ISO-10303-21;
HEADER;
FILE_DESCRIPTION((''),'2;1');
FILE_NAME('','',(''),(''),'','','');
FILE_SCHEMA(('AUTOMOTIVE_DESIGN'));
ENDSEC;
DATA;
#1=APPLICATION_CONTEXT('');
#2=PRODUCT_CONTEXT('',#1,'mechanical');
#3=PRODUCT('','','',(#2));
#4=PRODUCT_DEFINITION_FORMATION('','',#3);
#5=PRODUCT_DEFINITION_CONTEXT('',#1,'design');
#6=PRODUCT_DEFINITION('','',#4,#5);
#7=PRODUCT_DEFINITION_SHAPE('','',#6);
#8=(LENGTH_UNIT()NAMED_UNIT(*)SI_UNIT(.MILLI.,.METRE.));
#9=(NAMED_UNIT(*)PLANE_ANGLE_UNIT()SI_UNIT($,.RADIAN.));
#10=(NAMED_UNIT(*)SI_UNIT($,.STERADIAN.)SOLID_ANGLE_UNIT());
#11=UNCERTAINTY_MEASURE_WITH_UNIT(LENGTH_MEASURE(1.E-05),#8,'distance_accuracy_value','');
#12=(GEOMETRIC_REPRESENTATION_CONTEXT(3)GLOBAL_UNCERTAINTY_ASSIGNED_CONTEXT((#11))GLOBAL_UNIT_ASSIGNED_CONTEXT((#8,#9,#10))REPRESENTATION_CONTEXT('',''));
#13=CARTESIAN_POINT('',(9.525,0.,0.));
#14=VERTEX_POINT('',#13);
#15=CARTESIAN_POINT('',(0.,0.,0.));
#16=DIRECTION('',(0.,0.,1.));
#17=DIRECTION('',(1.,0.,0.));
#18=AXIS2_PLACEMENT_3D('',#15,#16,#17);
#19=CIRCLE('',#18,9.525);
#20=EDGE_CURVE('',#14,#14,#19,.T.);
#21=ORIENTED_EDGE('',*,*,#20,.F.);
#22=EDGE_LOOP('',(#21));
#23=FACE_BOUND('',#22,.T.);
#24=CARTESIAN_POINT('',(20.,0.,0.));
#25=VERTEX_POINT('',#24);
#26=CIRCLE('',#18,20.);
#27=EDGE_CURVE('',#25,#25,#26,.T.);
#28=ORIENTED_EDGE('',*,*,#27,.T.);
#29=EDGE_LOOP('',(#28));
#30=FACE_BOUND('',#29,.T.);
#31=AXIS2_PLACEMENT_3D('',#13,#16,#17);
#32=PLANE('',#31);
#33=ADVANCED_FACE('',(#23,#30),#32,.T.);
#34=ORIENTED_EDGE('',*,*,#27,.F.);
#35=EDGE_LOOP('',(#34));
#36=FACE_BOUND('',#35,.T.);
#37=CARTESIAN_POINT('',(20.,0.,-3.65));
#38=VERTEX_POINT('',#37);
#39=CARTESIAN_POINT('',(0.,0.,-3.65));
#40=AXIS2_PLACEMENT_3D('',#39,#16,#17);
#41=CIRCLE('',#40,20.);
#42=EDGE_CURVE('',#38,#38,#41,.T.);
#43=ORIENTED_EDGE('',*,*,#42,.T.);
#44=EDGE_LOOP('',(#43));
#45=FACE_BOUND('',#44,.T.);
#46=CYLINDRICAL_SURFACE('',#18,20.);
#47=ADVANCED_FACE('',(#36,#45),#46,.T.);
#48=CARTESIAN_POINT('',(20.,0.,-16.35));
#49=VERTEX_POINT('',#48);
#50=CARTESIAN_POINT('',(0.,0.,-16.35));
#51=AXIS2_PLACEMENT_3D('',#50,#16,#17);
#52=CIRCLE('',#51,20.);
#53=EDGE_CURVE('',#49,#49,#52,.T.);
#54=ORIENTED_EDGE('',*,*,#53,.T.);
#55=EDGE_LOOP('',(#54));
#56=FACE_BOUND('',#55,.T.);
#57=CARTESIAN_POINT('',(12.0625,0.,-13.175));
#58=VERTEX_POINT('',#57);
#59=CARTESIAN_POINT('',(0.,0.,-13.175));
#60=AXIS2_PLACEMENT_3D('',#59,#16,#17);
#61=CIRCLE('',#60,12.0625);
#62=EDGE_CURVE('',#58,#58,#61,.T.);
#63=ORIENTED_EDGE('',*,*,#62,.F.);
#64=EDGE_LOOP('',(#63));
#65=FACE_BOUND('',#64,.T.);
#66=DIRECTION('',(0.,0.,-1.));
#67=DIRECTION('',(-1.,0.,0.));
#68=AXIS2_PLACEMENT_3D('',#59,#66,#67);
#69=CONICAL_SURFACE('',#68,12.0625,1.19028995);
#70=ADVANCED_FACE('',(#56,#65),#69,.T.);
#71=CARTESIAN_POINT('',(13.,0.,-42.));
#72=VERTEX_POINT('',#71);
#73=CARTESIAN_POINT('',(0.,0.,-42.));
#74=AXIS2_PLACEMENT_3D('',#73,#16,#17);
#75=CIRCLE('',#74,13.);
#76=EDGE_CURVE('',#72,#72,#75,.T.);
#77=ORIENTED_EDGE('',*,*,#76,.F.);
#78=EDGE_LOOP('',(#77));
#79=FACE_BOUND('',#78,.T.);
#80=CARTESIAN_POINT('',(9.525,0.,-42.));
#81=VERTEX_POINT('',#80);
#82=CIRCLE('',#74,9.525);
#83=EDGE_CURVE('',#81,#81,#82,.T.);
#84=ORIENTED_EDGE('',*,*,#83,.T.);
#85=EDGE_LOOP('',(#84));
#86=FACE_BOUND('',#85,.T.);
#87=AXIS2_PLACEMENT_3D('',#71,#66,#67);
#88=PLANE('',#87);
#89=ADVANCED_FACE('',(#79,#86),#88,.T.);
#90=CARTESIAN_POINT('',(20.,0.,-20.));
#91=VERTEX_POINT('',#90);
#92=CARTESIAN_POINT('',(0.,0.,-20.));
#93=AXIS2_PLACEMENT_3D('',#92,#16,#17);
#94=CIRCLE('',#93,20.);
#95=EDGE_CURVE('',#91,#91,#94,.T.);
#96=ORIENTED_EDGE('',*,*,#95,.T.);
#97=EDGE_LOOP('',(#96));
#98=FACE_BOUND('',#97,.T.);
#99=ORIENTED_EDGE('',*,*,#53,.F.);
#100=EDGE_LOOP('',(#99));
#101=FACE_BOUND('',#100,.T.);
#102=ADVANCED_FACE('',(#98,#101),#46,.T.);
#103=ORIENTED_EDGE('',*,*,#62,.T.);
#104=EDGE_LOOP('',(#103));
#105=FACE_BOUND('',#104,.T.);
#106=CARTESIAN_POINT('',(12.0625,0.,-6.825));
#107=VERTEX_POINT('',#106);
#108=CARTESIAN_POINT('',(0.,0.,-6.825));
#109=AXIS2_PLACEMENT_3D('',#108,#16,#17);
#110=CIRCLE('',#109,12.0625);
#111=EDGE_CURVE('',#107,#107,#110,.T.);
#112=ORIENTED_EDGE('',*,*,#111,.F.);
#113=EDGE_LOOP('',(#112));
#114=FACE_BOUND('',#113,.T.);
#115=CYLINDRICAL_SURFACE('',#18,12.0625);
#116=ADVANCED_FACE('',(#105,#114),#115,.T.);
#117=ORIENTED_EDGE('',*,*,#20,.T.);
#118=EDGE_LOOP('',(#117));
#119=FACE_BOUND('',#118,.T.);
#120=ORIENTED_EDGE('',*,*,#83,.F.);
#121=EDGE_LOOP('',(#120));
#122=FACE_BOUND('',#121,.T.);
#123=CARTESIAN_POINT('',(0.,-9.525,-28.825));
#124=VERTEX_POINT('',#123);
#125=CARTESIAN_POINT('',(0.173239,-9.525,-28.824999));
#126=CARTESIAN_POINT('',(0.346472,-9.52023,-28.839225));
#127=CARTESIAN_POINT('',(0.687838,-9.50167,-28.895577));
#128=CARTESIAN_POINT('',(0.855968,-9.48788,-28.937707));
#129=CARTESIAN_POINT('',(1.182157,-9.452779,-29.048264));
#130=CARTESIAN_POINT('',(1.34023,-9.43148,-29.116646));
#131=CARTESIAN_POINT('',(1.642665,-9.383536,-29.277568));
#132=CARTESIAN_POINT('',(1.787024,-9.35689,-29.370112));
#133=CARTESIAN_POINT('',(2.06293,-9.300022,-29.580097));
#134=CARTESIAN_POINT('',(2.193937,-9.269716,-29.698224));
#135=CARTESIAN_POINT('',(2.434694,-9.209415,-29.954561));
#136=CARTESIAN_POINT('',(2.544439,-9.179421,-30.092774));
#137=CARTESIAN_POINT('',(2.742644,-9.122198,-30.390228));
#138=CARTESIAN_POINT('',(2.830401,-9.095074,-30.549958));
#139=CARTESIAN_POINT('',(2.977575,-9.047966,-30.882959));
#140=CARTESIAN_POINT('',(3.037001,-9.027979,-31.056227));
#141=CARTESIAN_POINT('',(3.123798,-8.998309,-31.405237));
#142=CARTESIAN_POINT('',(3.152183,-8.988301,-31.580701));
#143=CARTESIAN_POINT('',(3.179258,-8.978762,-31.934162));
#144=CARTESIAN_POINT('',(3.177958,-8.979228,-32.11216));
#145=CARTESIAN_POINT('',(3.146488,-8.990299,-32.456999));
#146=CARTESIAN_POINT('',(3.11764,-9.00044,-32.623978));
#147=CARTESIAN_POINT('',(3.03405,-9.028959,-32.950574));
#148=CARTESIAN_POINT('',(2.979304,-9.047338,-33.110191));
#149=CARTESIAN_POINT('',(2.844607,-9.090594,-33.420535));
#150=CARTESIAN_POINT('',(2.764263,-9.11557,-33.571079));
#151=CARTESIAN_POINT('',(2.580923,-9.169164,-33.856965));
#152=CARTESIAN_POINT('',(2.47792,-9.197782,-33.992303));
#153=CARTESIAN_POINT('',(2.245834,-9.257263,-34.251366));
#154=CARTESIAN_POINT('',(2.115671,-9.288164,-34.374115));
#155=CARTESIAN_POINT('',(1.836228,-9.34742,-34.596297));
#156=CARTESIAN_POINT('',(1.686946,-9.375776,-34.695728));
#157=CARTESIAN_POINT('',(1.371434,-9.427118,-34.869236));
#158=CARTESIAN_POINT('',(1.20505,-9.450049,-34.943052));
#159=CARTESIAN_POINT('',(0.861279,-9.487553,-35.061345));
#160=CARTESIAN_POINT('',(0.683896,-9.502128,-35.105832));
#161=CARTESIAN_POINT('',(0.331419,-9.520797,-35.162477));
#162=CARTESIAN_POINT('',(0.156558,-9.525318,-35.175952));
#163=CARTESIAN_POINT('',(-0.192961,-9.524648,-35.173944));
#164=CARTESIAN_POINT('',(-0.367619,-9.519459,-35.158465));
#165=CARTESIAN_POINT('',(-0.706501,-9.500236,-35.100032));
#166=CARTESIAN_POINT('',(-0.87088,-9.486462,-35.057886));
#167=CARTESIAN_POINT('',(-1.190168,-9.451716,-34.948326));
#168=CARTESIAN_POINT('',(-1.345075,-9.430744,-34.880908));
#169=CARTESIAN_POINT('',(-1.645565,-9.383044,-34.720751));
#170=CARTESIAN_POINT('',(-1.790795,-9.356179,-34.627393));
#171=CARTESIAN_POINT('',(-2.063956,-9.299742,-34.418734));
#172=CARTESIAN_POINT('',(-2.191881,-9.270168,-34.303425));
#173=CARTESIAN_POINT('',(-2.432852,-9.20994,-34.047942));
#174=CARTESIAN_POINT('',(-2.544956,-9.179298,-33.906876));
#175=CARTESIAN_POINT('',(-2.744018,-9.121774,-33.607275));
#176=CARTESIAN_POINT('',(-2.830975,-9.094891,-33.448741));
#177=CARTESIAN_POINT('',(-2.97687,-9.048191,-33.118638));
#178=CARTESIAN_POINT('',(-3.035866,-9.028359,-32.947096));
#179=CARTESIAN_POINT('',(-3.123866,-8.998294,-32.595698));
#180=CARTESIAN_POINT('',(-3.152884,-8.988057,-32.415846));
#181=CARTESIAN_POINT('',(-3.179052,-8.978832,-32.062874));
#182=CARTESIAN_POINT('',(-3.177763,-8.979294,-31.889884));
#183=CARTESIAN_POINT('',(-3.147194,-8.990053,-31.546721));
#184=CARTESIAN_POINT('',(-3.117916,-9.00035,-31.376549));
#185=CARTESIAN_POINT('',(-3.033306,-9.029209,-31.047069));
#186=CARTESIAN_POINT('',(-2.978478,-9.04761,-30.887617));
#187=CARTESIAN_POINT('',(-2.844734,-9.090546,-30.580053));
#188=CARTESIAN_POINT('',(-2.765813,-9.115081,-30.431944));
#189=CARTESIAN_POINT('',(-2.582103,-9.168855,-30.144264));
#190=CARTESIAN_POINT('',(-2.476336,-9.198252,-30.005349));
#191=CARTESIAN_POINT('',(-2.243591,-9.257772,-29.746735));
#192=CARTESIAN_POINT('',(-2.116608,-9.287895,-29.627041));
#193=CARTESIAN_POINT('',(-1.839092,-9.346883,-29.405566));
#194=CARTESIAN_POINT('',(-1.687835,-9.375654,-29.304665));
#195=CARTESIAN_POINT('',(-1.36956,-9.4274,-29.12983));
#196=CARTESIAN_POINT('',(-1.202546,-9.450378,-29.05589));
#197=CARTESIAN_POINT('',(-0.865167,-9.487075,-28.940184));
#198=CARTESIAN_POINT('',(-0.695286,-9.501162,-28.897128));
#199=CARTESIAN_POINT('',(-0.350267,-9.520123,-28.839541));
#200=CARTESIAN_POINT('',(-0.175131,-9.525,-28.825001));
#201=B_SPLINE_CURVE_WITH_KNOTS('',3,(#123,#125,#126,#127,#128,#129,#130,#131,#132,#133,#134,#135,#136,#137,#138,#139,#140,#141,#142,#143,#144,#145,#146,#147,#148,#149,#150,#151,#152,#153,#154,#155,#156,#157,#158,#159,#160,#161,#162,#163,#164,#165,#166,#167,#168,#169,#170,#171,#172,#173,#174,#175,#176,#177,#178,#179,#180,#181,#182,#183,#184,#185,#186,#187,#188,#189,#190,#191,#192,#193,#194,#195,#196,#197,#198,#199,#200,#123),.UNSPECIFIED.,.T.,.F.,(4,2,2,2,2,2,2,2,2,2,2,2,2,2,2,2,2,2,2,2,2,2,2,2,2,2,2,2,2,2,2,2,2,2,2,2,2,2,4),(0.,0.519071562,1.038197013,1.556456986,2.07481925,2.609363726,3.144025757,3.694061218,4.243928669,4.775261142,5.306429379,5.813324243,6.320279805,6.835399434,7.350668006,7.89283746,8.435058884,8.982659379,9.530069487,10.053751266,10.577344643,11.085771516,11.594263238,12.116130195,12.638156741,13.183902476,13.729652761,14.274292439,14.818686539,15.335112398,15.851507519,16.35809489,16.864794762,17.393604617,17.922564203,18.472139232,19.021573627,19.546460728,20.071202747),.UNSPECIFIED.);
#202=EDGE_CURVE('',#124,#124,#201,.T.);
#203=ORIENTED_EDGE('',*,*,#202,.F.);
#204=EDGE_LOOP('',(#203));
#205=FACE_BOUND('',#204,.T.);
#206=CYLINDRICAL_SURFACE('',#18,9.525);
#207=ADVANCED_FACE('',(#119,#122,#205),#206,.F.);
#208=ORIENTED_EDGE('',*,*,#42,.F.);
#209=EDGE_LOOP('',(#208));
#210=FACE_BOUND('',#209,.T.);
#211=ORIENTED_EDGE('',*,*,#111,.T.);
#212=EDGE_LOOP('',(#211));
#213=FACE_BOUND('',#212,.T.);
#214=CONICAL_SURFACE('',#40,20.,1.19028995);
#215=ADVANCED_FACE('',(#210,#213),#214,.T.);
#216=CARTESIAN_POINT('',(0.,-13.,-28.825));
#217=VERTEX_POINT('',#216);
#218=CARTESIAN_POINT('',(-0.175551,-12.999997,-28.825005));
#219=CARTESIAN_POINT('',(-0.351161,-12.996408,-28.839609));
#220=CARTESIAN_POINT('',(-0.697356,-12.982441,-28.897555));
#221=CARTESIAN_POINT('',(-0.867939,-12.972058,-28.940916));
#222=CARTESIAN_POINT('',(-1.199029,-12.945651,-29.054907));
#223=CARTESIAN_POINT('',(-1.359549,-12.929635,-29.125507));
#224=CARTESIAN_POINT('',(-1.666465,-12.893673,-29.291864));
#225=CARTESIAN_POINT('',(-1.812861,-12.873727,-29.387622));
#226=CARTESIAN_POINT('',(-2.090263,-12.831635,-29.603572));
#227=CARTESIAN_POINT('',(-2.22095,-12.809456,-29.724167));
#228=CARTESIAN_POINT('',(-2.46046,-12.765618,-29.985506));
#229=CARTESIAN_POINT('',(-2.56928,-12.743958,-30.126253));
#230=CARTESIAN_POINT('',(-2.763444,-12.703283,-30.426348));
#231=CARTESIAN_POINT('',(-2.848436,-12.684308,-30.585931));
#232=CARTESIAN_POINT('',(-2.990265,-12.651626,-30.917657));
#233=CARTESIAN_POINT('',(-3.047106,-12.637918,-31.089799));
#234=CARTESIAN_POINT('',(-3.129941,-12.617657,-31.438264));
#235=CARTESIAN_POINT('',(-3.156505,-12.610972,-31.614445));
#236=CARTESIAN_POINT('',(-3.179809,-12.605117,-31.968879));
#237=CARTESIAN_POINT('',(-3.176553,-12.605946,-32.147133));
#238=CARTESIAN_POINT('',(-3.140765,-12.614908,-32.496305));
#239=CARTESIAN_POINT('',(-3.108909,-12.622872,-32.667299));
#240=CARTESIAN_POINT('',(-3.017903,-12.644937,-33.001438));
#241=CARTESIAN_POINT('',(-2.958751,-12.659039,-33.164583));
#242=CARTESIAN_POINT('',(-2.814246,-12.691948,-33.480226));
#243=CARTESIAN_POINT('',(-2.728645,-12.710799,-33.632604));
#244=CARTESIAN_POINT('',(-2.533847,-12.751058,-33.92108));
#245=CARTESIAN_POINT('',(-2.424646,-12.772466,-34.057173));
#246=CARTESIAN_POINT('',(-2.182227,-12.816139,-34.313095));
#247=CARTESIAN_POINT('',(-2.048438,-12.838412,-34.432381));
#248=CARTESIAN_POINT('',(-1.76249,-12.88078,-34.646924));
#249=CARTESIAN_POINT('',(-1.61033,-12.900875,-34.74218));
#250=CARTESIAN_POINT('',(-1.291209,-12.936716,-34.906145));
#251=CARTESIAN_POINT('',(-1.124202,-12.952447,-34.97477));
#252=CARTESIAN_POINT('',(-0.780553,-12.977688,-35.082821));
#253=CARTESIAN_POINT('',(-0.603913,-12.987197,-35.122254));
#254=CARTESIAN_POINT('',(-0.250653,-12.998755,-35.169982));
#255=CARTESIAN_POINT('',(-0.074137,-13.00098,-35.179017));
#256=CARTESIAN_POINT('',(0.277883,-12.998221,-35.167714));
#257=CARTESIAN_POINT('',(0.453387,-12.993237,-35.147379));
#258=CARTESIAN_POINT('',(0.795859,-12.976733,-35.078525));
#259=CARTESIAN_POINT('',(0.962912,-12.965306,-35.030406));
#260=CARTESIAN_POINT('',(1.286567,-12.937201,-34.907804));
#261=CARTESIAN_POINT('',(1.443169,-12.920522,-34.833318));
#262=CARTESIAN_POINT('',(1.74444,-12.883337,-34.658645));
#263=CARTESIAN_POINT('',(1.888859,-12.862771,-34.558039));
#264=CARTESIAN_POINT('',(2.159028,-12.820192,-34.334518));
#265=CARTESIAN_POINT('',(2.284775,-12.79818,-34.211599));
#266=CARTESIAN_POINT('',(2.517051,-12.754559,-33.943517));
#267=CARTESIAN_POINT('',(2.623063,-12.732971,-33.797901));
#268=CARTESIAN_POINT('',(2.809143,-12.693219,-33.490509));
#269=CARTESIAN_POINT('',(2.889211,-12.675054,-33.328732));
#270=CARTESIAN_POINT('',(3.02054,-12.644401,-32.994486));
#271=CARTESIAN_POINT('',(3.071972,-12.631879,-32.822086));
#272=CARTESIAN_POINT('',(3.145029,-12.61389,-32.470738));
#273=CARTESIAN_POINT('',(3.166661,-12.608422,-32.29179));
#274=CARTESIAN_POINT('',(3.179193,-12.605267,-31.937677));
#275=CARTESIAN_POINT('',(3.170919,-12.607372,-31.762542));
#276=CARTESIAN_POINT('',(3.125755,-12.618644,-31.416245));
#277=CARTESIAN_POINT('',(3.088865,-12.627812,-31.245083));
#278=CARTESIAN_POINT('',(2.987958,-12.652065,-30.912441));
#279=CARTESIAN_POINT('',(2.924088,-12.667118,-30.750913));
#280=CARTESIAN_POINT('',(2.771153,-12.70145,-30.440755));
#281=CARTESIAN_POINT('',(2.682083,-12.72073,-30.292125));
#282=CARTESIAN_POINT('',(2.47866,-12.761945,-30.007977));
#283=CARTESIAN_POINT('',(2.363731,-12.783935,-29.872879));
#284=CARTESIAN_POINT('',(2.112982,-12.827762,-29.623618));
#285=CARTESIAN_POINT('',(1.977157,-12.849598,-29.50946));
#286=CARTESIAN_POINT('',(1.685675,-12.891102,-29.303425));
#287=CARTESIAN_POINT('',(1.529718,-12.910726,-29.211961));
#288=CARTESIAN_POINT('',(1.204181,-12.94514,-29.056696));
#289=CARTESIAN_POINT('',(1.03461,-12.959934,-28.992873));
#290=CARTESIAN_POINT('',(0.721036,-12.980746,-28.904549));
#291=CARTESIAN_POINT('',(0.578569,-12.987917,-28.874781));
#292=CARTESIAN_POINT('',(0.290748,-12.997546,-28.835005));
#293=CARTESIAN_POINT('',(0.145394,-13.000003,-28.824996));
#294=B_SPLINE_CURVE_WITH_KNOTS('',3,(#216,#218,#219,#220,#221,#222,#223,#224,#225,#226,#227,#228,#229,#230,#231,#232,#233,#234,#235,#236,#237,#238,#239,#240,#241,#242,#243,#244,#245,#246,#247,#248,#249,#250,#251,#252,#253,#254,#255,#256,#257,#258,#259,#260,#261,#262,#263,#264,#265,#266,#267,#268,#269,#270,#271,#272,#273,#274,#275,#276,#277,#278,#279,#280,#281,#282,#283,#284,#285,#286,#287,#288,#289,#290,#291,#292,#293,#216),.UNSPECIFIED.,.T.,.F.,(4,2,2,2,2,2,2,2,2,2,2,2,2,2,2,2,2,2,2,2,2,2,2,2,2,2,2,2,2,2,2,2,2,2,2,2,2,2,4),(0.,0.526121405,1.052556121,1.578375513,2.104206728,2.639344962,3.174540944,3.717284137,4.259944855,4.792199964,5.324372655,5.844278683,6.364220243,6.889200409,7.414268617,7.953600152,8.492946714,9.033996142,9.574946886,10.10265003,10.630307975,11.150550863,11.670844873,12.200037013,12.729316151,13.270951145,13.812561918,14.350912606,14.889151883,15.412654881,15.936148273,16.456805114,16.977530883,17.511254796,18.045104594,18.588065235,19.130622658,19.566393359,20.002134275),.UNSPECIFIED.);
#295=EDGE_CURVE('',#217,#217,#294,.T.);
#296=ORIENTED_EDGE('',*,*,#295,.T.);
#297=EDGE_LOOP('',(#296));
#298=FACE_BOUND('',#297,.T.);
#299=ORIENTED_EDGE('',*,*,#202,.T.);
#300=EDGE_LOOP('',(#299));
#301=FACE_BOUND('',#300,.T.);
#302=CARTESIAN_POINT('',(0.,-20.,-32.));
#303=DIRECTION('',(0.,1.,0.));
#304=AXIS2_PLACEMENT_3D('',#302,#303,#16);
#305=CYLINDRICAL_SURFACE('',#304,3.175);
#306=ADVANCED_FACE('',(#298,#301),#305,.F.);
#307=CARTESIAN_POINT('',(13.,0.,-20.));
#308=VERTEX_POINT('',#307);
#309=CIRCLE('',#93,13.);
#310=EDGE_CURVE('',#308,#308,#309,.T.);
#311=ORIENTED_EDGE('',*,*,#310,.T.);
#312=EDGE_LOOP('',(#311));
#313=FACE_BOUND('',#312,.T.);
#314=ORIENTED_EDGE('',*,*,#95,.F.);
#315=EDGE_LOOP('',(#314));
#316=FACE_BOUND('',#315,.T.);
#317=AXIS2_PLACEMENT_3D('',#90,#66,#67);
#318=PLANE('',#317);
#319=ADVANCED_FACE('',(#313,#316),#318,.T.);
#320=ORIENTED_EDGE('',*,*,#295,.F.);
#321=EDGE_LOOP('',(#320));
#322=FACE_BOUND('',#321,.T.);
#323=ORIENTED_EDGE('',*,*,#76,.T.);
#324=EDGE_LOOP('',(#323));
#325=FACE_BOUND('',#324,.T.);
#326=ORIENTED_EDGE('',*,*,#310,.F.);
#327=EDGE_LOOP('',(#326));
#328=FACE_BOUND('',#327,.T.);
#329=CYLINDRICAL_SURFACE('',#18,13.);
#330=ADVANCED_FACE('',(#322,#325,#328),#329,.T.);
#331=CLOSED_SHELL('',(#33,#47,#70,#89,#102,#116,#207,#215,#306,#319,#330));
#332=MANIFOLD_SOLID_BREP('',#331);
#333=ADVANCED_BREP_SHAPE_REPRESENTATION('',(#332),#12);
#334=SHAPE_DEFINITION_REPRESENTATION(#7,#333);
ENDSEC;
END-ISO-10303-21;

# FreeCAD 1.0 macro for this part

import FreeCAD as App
import Part
import Sketcher

doc = App.newDocument("Part")
body = doc.addObject("PartDesign::Body", "Body")

# Sketch on XZ plane
sketch1 = body.newObject("Sketcher::SketchObject", "Sketch")
sketch1.AttachmentSupport = (doc.getObject("XZ_Plane"), [""])
sketch1.MapMode = "FlatFace"
sketch1.addGeometry(Part.LineSegment(App.Vector(20, 0, 0), App.Vector(20, -3.6, 0)), False)
sketch1.addGeometry(Part.LineSegment(App.Vector(20, -3.6, 0), App.Vector(12.1, -6.8, 0)), False)
sketch1.addGeometry(Part.LineSegment(App.Vector(12.1, -6.8, 0), App.Vector(12.1, -13.2, 0)), False)
sketch1.addGeometry(Part.LineSegment(App.Vector(12.1, -13.2, 0), App.Vector(20, -16.4, 0)), False)
sketch1.addGeometry(Part.LineSegment(App.Vector(20, -16.4, 0), App.Vector(20, -20, 0)), False)
sketch1.addGeometry(Part.LineSegment(App.Vector(20, -20, 0), App.Vector(13, -20, 0)), False)
sketch1.addGeometry(Part.LineSegment(App.Vector(13, -20, 0), App.Vector(13, -42, 0)), False)
sketch1.addGeometry(Part.LineSegment(App.Vector(13, -42, 0), App.Vector(9.5, -42, 0)), False)
sketch1.addGeometry(Part.LineSegment(App.Vector(9.5, -42, 0), App.Vector(9.5, 0, 0)), False)
sketch1.addGeometry(Part.LineSegment(App.Vector(9.5, 0, 0), App.Vector(20, 0, 0)), False)
sketch1.addConstraint(Sketcher.Constraint("Coincident", 0, 2, 1, 1))
sketch1.addConstraint(Sketcher.Constraint("Coincident", 1, 2, 2, 1))
sketch1.addConstraint(Sketcher.Constraint("Coincident", 2, 2, 3, 1))
sketch1.addConstraint(Sketcher.Constraint("Coincident", 3, 2, 4, 1))
sketch1.addConstraint(Sketcher.Constraint("Coincident", 4, 2, 5, 1))
sketch1.addConstraint(Sketcher.Constraint("Coincident", 5, 2, 6, 1))
sketch1.addConstraint(Sketcher.Constraint("Coincident", 6, 2, 7, 1))
sketch1.addConstraint(Sketcher.Constraint("Coincident", 7, 2, 8, 1))
sketch1.addConstraint(Sketcher.Constraint("Coincident", 8, 2, 9, 1))
sketch1.addConstraint(Sketcher.Constraint("Coincident", 9, 2, 0, 1))
sketch1.addConstraint(Sketcher.Constraint("Vertical", 0))
sketch1.addConstraint(Sketcher.Constraint("Vertical", 2))
sketch1.addConstraint(Sketcher.Constraint("Vertical", 4))
sketch1.addConstraint(Sketcher.Constraint("Horizontal", 5))
sketch1.addConstraint(Sketcher.Constraint("Vertical", 6))
sketch1.addConstraint(Sketcher.Constraint("Horizontal", 7))
sketch1.addConstraint(Sketcher.Constraint("Vertical", 8))
sketch1.addConstraint(Sketcher.Constraint("Horizontal", 9))
sketch1.addConstraint(Sketcher.Constraint("PointOnObject", 8, 2, -1))
sketch1.addConstraint(Sketcher.Constraint("Vertical", 0, 2, 3, 2))
sketch1.addConstraint(Sketcher.Constraint("Equal", 0, 4))
sketch1.addConstraint(Sketcher.Constraint("Equal", 1, 3))
sketch1.addConstraint(Sketcher.Constraint("DistanceX", 5, 2, 5, 1, 7.0))
sketch1.addConstraint(Sketcher.Constraint("DistanceY", 6, 2, 6, 1, 22.0))
sketch1.addConstraint(Sketcher.Constraint("DistanceY", 8, 1, 8, 2, 42.0))
sketch1.addConstraint(Sketcher.Constraint("DistanceX", -1, 1, 0, 2, 20.0))
sketch1.addConstraint(Sketcher.Constraint("DistanceY", 0, 2, 0, 1, 3.65))
sketch1.addConstraint(Sketcher.Constraint("DistanceY", 2, 2, 2, 1, 6.35))
sketch1.addConstraint(Sketcher.Constraint("DistanceX", 7, 2, 7, 1, 3.475))
sketch1.addConstraint(Sketcher.Constraint("DistanceX", -1, 1, 1, 2, 12.0625))
revolution = body.newObject("PartDesign::Revolution", "Revolution")
revolution.Profile = sketch1
revolution.ReferenceAxis = (sketch1, ["V_Axis"])
revolution.Angle = 360

# Sketch on XZ plane
sketch2 = body.newObject("Sketcher::SketchObject", "Sketch001")
sketch2.AttachmentSupport = (doc.getObject("XZ_Plane"), [""])
sketch2.MapMode = "FlatFace"
sketch2.addGeometry(Part.Circle(App.Vector(0, -32, 0), App.Vector(0, 0, 1), 3.2), False)
sketch2.addConstraint(Sketcher.Constraint("PointOnObject", 0, 3, -2))
sketch2.addConstraint(Sketcher.Constraint("Diameter", 0, 6.35))
sketch2.addConstraint(Sketcher.Constraint("DistanceY", 0, 3, -1, 1, 32.0))
pocket1 = body.newObject("PartDesign::Pocket", "Pocket")
pocket1.Profile = sketch2
pocket1.Type = "ThroughAll"
pocket1.Reversed = True

doc.recompute()
